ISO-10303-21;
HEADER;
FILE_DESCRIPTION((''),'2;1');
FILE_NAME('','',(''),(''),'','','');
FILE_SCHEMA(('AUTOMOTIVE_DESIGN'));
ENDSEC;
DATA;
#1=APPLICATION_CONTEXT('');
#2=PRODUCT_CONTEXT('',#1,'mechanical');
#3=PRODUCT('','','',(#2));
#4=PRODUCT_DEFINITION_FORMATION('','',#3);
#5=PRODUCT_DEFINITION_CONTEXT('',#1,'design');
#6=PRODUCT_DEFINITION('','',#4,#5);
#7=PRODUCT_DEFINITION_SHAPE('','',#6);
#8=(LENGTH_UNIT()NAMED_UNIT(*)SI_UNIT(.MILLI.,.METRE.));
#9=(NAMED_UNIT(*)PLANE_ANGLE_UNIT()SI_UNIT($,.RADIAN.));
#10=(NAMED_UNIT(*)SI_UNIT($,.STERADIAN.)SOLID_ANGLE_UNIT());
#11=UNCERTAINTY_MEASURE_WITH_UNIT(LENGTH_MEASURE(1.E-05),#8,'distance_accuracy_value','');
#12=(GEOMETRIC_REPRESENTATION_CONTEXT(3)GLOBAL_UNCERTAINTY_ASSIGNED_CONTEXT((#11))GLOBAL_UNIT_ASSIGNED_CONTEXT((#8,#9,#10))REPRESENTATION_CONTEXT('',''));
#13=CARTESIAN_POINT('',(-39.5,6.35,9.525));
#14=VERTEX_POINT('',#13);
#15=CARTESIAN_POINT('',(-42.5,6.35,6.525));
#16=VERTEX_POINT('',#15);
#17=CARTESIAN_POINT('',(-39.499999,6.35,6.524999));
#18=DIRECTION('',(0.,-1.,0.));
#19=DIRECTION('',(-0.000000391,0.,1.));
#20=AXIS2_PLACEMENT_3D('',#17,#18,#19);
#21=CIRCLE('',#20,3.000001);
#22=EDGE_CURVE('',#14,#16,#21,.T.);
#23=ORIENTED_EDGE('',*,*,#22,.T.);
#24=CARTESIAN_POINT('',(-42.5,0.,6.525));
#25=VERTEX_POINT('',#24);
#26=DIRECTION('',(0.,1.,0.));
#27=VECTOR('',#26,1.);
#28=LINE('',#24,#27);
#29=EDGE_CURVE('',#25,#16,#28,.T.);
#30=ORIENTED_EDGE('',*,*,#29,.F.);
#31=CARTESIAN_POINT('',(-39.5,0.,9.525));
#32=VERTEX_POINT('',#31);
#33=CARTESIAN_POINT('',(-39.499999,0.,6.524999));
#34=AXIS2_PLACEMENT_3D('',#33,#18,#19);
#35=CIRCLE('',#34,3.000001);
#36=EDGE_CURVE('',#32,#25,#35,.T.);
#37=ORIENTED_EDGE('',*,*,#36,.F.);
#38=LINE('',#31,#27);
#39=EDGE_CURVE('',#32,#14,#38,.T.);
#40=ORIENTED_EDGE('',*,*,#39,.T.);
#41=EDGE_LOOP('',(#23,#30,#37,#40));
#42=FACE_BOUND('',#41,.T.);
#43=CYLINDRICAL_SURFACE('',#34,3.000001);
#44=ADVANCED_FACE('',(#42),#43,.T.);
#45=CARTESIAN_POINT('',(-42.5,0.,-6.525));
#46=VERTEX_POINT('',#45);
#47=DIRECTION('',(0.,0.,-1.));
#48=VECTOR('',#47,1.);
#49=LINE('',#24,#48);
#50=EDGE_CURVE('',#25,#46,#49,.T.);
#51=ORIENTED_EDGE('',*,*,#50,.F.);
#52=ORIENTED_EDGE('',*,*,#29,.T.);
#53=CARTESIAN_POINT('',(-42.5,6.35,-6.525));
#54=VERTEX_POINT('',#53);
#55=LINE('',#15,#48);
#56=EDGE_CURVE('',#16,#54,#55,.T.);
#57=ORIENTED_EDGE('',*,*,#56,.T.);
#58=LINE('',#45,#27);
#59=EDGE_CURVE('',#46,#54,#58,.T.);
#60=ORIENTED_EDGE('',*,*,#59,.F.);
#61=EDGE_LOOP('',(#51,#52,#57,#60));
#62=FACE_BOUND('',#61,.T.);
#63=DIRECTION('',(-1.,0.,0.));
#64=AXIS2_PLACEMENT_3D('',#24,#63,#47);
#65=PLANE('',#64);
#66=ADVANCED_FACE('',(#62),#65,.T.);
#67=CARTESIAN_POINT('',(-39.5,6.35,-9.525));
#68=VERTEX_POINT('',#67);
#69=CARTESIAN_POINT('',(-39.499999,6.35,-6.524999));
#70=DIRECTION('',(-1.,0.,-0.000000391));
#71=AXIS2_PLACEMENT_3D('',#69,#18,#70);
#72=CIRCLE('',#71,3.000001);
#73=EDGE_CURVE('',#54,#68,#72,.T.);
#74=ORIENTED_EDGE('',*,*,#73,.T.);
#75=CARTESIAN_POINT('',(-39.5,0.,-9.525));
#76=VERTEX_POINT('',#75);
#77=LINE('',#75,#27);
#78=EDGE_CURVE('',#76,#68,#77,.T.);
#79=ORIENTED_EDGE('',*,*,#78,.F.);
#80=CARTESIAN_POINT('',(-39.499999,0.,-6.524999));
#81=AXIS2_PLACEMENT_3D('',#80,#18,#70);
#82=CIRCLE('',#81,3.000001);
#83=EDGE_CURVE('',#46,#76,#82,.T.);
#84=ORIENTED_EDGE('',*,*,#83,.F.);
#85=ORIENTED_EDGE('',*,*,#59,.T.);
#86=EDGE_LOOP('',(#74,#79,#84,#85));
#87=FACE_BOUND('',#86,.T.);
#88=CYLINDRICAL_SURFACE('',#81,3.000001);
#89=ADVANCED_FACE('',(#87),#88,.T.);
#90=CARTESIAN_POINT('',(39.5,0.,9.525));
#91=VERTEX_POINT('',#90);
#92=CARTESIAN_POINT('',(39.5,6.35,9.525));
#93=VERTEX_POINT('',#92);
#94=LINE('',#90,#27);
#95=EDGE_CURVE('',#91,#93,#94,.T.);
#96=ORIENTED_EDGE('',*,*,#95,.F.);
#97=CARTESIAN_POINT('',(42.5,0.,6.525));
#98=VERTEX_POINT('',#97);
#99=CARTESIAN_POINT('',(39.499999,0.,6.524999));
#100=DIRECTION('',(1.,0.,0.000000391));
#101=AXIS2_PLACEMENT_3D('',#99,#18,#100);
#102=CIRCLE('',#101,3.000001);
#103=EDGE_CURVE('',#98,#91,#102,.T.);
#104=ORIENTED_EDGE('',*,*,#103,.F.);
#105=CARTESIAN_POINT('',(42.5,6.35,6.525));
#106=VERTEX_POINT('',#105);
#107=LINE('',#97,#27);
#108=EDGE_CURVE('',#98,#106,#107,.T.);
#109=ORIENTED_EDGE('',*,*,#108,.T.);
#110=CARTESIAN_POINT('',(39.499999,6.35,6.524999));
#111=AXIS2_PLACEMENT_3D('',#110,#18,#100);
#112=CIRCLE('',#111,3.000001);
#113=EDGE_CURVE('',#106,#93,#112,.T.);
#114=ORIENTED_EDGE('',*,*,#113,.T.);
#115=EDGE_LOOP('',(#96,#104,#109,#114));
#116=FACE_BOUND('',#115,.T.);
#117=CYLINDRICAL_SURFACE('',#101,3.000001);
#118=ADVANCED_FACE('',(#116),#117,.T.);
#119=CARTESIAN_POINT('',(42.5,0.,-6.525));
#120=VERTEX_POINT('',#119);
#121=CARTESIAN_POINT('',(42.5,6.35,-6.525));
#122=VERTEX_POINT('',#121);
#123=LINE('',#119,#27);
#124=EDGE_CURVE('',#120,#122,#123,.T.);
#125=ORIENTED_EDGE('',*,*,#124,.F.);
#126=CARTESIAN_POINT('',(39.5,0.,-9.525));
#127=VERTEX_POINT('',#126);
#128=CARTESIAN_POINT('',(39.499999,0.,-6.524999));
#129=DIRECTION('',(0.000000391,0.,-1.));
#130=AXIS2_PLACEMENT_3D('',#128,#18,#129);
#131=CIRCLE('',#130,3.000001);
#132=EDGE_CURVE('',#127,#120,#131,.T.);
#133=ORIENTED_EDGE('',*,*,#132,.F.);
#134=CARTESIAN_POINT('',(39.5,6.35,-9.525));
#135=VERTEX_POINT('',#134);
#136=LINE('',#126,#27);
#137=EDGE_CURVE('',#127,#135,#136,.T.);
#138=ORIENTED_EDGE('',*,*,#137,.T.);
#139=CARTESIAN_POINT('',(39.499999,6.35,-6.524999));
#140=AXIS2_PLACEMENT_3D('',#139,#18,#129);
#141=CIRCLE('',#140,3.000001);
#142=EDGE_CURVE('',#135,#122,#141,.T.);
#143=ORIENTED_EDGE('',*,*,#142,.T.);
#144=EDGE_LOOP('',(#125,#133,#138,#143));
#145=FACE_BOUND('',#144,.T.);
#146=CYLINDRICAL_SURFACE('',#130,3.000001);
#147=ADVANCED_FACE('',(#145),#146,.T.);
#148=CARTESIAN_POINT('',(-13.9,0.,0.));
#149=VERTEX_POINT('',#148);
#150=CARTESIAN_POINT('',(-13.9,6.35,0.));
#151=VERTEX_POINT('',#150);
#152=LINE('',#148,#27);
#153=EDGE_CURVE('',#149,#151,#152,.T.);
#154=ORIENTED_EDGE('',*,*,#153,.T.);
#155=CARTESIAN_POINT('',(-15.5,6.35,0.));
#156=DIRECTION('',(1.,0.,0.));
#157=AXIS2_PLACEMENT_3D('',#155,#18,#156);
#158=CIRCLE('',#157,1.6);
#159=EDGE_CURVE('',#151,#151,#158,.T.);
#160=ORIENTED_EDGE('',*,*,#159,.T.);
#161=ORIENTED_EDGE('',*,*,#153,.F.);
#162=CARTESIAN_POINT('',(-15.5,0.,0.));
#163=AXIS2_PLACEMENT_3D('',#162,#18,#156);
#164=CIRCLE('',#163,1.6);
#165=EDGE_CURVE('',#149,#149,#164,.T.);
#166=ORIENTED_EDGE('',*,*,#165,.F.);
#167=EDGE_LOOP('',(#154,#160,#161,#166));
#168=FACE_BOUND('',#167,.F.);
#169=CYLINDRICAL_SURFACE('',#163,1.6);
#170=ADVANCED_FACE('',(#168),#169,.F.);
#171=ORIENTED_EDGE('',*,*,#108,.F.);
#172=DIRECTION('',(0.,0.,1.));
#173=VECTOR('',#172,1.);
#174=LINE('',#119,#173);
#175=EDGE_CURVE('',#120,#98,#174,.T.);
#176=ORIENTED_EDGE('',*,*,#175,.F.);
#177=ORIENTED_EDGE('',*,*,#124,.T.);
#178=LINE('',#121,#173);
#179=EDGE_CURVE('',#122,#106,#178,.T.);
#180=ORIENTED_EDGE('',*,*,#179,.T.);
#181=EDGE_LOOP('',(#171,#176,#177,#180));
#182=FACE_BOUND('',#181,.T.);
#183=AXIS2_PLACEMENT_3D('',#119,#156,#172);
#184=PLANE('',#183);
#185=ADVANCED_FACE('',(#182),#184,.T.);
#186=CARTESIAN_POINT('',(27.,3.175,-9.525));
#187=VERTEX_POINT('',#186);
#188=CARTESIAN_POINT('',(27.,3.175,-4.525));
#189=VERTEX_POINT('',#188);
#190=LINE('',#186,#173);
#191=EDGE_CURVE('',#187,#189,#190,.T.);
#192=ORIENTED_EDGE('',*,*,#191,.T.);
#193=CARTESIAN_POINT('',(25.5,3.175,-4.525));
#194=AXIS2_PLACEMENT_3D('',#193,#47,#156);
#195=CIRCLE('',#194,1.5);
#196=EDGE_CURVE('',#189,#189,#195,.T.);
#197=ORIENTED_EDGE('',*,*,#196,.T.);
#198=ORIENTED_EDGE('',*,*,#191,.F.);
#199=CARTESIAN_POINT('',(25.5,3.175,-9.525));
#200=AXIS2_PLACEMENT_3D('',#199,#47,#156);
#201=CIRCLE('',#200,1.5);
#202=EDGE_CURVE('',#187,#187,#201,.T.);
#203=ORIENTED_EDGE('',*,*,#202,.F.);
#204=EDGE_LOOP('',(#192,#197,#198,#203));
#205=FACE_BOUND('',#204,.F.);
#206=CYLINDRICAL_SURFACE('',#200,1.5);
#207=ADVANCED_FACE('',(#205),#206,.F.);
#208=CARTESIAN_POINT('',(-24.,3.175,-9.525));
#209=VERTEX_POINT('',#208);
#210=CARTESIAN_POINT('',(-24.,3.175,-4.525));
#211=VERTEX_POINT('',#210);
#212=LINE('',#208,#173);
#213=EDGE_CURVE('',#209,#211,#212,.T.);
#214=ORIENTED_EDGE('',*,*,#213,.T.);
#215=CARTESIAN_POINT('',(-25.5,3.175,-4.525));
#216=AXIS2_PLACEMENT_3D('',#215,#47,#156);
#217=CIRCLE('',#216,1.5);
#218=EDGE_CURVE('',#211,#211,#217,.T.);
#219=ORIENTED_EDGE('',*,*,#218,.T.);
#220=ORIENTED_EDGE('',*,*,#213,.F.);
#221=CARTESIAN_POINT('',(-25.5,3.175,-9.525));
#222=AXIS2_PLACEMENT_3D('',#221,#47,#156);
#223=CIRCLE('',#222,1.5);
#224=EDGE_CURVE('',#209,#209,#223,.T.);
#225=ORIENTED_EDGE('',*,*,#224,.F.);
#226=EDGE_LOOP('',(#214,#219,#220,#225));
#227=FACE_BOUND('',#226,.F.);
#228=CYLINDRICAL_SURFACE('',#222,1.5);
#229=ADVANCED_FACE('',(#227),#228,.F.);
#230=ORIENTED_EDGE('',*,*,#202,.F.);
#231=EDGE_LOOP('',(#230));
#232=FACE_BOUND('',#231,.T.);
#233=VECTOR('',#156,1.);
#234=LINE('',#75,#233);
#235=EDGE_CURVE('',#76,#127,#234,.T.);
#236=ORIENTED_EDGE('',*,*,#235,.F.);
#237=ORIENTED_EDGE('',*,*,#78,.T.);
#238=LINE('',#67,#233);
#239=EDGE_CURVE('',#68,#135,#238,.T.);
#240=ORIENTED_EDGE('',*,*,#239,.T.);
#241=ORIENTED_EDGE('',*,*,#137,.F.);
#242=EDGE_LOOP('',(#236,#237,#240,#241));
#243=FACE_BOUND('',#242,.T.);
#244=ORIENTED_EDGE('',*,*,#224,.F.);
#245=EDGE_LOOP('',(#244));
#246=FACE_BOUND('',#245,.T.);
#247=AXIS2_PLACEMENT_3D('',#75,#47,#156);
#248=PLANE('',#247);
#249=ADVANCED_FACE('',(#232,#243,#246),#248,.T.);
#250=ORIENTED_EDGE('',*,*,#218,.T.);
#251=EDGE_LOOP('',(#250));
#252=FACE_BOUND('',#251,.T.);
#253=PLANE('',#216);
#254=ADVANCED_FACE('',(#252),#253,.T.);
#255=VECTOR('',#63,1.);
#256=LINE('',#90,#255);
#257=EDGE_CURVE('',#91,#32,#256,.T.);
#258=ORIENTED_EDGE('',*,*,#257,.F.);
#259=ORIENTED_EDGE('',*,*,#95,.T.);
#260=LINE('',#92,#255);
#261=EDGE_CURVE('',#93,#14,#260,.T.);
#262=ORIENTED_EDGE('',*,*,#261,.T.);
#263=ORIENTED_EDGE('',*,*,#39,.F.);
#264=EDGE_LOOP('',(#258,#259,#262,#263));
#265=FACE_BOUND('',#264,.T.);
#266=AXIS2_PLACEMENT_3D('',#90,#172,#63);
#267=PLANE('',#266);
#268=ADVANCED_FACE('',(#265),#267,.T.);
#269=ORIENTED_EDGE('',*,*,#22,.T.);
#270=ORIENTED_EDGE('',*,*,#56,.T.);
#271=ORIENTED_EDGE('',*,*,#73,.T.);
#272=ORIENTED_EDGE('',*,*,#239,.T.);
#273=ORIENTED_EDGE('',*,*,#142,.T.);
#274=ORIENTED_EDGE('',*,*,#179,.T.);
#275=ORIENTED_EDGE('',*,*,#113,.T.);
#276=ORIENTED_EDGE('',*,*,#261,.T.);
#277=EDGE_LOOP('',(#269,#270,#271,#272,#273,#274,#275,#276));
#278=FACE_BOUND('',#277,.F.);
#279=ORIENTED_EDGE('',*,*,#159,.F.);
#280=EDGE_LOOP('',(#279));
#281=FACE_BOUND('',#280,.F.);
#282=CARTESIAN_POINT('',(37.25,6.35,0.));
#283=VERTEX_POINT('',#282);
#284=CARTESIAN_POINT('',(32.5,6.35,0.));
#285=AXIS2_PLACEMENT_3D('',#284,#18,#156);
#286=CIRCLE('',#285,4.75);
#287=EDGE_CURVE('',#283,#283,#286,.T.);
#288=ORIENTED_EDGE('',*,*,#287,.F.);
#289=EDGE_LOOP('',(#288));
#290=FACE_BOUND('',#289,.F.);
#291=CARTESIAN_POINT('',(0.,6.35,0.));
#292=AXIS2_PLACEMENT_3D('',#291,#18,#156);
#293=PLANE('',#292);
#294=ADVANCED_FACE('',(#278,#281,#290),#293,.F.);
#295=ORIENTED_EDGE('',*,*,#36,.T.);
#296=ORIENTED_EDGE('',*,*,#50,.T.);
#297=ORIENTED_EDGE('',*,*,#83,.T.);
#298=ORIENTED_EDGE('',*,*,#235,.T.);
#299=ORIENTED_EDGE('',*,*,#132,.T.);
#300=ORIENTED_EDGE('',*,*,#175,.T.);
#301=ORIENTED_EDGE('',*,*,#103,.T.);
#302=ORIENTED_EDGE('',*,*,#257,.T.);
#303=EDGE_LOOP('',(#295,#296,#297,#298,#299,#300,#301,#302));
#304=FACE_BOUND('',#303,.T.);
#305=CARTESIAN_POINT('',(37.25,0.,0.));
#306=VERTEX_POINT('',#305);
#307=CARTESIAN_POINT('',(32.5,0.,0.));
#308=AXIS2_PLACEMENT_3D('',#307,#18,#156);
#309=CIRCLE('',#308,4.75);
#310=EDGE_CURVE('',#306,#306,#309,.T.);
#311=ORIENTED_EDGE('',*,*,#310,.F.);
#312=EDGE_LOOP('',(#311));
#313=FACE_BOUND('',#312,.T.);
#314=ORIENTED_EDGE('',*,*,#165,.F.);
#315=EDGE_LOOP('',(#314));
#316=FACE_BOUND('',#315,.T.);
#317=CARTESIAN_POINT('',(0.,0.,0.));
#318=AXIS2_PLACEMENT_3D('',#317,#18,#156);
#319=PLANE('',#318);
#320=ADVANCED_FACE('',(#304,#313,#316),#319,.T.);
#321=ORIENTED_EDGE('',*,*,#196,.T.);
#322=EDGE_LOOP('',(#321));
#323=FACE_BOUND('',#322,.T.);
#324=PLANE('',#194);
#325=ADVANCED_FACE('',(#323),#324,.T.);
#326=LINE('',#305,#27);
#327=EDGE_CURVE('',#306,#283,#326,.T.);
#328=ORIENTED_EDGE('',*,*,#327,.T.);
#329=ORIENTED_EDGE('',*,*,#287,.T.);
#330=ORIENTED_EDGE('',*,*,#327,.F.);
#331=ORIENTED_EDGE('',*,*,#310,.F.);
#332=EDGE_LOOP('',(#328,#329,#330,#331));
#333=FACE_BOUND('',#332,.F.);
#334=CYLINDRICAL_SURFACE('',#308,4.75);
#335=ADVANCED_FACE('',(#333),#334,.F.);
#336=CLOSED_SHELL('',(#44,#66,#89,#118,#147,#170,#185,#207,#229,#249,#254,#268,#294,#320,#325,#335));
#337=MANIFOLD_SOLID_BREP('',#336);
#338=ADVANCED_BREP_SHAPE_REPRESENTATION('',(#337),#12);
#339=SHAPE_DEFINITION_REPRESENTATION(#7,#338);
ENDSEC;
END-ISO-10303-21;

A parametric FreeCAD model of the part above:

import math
import FreeCAD as App
import Part
import Sketcher

doc = App.newDocument("Part")
body = doc.addObject("PartDesign::Body", "Body")

sketch1 = body.newObject("Sketcher::SketchObject", "Sketch")
sketch1.AttachmentSupport = (doc.getObject("XZ_Plane"), [""])
sketch1.MapMode = "FlatFace"
sketch1.addGeometry([
    Part.LineSegment(App.Vector(39.5, 9.5, 0), App.Vector(-39.5, 9.5, 0)),
    Part.ArcOfCircle(Part.Circle(App.Vector(-39.5, 6.5, 0), App.Vector(0, 0, 1), 3), math.radians(90), math.radians(180)),
    Part.LineSegment(App.Vector(-42.5, 6.5, 0), App.Vector(-42.5, -6.5, 0)),
    Part.ArcOfCircle(Part.Circle(App.Vector(-39.5, -6.5, 0), App.Vector(0, 0, 1), 3), math.radians(-180), math.radians(-90)),
    Part.LineSegment(App.Vector(-39.5, -9.5, 0), App.Vector(39.5, -9.5, 0)),
    Part.ArcOfCircle(Part.Circle(App.Vector(39.5, -6.5, 0), App.Vector(0, 0, 1), 3), math.radians(-90), math.radians(0)),
    Part.LineSegment(App.Vector(42.5, -6.5, 0), App.Vector(42.5, 6.5, 0)),
    Part.ArcOfCircle(Part.Circle(App.Vector(39.5, 6.5, 0), App.Vector(0, 0, 1), 3), math.radians(0), math.radians(90)),
], False)
sketch1.addConstraint([
    Sketcher.Constraint("Tangent", 0, 2, 1, 1),
    Sketcher.Constraint("Tangent", 1, 2, 2, 1),
    Sketcher.Constraint("Tangent", 2, 2, 3, 1),
    Sketcher.Constraint("Tangent", 3, 2, 4, 1),
    Sketcher.Constraint("Tangent", 4, 2, 5, 1),
    Sketcher.Constraint("Tangent", 5, 2, 6, 1),
    Sketcher.Constraint("Tangent", 6, 2, 7, 1),
    Sketcher.Constraint("Tangent", 7, 2, 0, 1),
    Sketcher.Constraint("Horizontal", 0),
    Sketcher.Constraint("Vertical", 2),
    Sketcher.Constraint("Horizontal", 4),
    Sketcher.Constraint("Vertical", 6),
    Sketcher.Constraint("Equal", 1, 3),
    Sketcher.Constraint("Equal", 3, 5),
    Sketcher.Constraint("Equal", 5, 7),
    Sketcher.Constraint("Symmetric", 1, 3, 5, 3, -1, 1),
    Sketcher.Constraint("Radius", 1, 3.000001),
    Sketcher.Constraint("DistanceX", 0, 2, 0, 1, 79.0),
    Sketcher.Constraint("DistanceY", 2, 2, 2, 1, 13.05),
])
pad1 = body.newObject("PartDesign::Pad", "Pad")
pad1.Profile = sketch1
pad1.Length = 6.35
pad1.Reversed = True

sketch2 = body.newObject("Sketcher::SketchObject", "Sketch001")
sketch2.AttachmentSupport = (doc.getObject("XZ_Plane"), [""])
sketch2.MapMode = "FlatFace"
sketch2.addGeometry([
    Part.Circle(App.Vector(32.5, 0, 0), App.Vector(0, 0, 1), 4.8),
    Part.Circle(App.Vector(-15.5, 0, 0), App.Vector(0, 0, 1), 1.6),
], False)
sketch2.addConstraint([
    Sketcher.Constraint("PointOnObject", 0, 3, -1),
    Sketcher.Constraint("PointOnObject", 1, 3, -1),
    Sketcher.Constraint("Diameter", 0, 9.5),
    Sketcher.Constraint("Diameter", 1, 3.2),
    Sketcher.Constraint("DistanceX", 1, 3, 0, 3, 48.0),
    Sketcher.Constraint("DistanceX", -1, 1, 0, 3, 32.5),
])
pocket1 = body.newObject("PartDesign::Pocket", "Pocket")
pocket1.Profile = sketch2
pocket1.Length = 25

sketch3 = body.newObject("Sketcher::SketchObject", "Sketch002")
sketch3.AttachmentSupport = (doc.getObject("XY_Plane"), [""])
sketch3.MapMode = "FlatFace"
sketch3.AttachmentOffset = App.Placement(App.Vector(0, 0, -9.525), App.Rotation())
sketch3.addGeometry([
    Part.Circle(App.Vector(-25.5, 3.2, 0), App.Vector(0, 0, 1), 1.5),
    Part.Circle(App.Vector(25.5, 3.2, 0), App.Vector(0, 0, 1), 1.5),
], False)
sketch3.addConstraint([
    Sketcher.Constraint("Equal", 0, 1),
    Sketcher.Constraint("Symmetric", 0, 3, 1, 3, -2),
    Sketcher.Constraint("Diameter", 0, 3.0),
    Sketcher.Constraint("DistanceX", 0, 3, 1, 3, 51.0),
    Sketcher.Constraint("DistanceY", -1, 1, 0, 3, 3.175),
])
pocket2 = body.newObject("PartDesign::Pocket", "Pocket001")
pocket2.Profile = sketch3
pocket2.Length = 5
pocket2.Reversed = True

doc.recompute()
